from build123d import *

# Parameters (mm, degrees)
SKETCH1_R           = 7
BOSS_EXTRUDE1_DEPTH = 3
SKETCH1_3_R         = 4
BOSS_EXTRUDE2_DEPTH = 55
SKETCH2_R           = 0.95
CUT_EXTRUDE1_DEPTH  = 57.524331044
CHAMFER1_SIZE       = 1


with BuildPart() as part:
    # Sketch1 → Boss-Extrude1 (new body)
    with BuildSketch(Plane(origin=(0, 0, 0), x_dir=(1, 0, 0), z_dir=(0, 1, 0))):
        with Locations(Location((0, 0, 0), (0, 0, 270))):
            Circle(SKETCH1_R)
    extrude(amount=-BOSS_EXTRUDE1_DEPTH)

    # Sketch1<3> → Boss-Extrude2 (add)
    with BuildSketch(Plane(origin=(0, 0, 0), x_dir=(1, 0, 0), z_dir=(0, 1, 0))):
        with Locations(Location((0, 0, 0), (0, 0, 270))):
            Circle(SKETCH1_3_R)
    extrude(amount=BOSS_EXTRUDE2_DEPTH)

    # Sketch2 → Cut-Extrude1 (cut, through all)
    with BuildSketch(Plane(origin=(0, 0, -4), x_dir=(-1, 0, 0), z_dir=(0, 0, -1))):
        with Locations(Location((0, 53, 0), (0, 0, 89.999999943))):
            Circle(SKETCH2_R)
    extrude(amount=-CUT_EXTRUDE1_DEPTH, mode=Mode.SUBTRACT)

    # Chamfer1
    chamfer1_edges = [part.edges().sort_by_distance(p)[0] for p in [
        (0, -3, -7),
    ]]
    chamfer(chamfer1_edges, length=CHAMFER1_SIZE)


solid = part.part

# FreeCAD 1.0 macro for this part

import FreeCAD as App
import Part
import Sketcher
Q = App.Units.Quantity


def edges_at(feature, points):
    """Names of the edges that pass closest to the given points."""
    edges = feature.Shape.Edges
    near = lambda p: min(range(len(edges)), key=lambda i: edges[i].distToShape(Part.Vertex(*p))[0])
    return sorted({f"Edge{near(p) + 1}" for p in points})

doc = App.newDocument("Part")
body = doc.addObject("PartDesign::Body", "Body")

# Sketch on XZ plane
sketch1 = doc.addObject("Sketcher::SketchObject", "Sketch")
body.addObject(sketch1)
sketch1.AttachmentSupport = (doc.XZ_Plane, [""])
sketch1.MapMode = "FlatFace"
sketch1.addGeometry(Part.Circle(App.Vector(0, 0, 0), App.Vector(0, 0, 1), 7), False)
sketch1.addConstraint([
    Sketcher.Constraint("Coincident", 0, 3, -1, 1),
    Sketcher.Constraint("Diameter", 0, Q("14 mm")),
])
pad1 = doc.addObject("PartDesign::Pad", "Pad")
body.addObject(pad1)
pad1.Profile = sketch1
pad1.Length = 3

# Sketch on XZ plane
sketch2 = doc.addObject("Sketcher::SketchObject", "Sketch001")
body.addObject(sketch2)
sketch2.AttachmentSupport = (doc.XZ_Plane, [""])
sketch2.MapMode = "FlatFace"
sketch2.addGeometry(Part.Circle(App.Vector(0, 0, 0), App.Vector(0, 0, 1), 4), False)
sketch2.addConstraint([
    Sketcher.Constraint("Coincident", 0, 3, -1, 1),
    Sketcher.Constraint("Diameter", 0, Q("8 mm")),
])
pad2 = doc.addObject("PartDesign::Pad", "Pad001")
body.addObject(pad2)
pad2.Profile = sketch2
pad2.Length = 55
pad2.Reversed = True

# Sketch on XY plane
sketch3 = doc.addObject("Sketcher::SketchObject", "Sketch002")
body.addObject(sketch3)
sketch3.AttachmentSupport = (doc.XY_Plane, [""])
sketch3.MapMode = "FlatFace"
sketch3.AttachmentOffset = App.Placement(App.Vector(0, 0, -4), App.Rotation())
sketch3.addGeometry(Part.Circle(App.Vector(0, 53, 0), App.Vector(0, 0, 1), 0.9), False)
sketch3.addConstraint([
    Sketcher.Constraint("PointOnObject", 0, 3, -2),
    Sketcher.Constraint("Diameter", 0, Q("1.9 mm")),
    Sketcher.Constraint("DistanceY", -1, 1, 0, 3, Q("53 mm")),
])
pocket1 = doc.addObject("PartDesign::Pocket", "Pocket")
body.addObject(pocket1)
pocket1.Profile = sketch3
pocket1.Type = "ThroughAll"
pocket1.Reversed = True
doc.recompute()

chamfer = doc.addObject("PartDesign::Chamfer", "Chamfer")
body.addObject(chamfer)
chamfer.Base = (pocket1, edges_at(pocket1, [(0, -3, -7)]))
chamfer.Size = 1

doc.recompute()
